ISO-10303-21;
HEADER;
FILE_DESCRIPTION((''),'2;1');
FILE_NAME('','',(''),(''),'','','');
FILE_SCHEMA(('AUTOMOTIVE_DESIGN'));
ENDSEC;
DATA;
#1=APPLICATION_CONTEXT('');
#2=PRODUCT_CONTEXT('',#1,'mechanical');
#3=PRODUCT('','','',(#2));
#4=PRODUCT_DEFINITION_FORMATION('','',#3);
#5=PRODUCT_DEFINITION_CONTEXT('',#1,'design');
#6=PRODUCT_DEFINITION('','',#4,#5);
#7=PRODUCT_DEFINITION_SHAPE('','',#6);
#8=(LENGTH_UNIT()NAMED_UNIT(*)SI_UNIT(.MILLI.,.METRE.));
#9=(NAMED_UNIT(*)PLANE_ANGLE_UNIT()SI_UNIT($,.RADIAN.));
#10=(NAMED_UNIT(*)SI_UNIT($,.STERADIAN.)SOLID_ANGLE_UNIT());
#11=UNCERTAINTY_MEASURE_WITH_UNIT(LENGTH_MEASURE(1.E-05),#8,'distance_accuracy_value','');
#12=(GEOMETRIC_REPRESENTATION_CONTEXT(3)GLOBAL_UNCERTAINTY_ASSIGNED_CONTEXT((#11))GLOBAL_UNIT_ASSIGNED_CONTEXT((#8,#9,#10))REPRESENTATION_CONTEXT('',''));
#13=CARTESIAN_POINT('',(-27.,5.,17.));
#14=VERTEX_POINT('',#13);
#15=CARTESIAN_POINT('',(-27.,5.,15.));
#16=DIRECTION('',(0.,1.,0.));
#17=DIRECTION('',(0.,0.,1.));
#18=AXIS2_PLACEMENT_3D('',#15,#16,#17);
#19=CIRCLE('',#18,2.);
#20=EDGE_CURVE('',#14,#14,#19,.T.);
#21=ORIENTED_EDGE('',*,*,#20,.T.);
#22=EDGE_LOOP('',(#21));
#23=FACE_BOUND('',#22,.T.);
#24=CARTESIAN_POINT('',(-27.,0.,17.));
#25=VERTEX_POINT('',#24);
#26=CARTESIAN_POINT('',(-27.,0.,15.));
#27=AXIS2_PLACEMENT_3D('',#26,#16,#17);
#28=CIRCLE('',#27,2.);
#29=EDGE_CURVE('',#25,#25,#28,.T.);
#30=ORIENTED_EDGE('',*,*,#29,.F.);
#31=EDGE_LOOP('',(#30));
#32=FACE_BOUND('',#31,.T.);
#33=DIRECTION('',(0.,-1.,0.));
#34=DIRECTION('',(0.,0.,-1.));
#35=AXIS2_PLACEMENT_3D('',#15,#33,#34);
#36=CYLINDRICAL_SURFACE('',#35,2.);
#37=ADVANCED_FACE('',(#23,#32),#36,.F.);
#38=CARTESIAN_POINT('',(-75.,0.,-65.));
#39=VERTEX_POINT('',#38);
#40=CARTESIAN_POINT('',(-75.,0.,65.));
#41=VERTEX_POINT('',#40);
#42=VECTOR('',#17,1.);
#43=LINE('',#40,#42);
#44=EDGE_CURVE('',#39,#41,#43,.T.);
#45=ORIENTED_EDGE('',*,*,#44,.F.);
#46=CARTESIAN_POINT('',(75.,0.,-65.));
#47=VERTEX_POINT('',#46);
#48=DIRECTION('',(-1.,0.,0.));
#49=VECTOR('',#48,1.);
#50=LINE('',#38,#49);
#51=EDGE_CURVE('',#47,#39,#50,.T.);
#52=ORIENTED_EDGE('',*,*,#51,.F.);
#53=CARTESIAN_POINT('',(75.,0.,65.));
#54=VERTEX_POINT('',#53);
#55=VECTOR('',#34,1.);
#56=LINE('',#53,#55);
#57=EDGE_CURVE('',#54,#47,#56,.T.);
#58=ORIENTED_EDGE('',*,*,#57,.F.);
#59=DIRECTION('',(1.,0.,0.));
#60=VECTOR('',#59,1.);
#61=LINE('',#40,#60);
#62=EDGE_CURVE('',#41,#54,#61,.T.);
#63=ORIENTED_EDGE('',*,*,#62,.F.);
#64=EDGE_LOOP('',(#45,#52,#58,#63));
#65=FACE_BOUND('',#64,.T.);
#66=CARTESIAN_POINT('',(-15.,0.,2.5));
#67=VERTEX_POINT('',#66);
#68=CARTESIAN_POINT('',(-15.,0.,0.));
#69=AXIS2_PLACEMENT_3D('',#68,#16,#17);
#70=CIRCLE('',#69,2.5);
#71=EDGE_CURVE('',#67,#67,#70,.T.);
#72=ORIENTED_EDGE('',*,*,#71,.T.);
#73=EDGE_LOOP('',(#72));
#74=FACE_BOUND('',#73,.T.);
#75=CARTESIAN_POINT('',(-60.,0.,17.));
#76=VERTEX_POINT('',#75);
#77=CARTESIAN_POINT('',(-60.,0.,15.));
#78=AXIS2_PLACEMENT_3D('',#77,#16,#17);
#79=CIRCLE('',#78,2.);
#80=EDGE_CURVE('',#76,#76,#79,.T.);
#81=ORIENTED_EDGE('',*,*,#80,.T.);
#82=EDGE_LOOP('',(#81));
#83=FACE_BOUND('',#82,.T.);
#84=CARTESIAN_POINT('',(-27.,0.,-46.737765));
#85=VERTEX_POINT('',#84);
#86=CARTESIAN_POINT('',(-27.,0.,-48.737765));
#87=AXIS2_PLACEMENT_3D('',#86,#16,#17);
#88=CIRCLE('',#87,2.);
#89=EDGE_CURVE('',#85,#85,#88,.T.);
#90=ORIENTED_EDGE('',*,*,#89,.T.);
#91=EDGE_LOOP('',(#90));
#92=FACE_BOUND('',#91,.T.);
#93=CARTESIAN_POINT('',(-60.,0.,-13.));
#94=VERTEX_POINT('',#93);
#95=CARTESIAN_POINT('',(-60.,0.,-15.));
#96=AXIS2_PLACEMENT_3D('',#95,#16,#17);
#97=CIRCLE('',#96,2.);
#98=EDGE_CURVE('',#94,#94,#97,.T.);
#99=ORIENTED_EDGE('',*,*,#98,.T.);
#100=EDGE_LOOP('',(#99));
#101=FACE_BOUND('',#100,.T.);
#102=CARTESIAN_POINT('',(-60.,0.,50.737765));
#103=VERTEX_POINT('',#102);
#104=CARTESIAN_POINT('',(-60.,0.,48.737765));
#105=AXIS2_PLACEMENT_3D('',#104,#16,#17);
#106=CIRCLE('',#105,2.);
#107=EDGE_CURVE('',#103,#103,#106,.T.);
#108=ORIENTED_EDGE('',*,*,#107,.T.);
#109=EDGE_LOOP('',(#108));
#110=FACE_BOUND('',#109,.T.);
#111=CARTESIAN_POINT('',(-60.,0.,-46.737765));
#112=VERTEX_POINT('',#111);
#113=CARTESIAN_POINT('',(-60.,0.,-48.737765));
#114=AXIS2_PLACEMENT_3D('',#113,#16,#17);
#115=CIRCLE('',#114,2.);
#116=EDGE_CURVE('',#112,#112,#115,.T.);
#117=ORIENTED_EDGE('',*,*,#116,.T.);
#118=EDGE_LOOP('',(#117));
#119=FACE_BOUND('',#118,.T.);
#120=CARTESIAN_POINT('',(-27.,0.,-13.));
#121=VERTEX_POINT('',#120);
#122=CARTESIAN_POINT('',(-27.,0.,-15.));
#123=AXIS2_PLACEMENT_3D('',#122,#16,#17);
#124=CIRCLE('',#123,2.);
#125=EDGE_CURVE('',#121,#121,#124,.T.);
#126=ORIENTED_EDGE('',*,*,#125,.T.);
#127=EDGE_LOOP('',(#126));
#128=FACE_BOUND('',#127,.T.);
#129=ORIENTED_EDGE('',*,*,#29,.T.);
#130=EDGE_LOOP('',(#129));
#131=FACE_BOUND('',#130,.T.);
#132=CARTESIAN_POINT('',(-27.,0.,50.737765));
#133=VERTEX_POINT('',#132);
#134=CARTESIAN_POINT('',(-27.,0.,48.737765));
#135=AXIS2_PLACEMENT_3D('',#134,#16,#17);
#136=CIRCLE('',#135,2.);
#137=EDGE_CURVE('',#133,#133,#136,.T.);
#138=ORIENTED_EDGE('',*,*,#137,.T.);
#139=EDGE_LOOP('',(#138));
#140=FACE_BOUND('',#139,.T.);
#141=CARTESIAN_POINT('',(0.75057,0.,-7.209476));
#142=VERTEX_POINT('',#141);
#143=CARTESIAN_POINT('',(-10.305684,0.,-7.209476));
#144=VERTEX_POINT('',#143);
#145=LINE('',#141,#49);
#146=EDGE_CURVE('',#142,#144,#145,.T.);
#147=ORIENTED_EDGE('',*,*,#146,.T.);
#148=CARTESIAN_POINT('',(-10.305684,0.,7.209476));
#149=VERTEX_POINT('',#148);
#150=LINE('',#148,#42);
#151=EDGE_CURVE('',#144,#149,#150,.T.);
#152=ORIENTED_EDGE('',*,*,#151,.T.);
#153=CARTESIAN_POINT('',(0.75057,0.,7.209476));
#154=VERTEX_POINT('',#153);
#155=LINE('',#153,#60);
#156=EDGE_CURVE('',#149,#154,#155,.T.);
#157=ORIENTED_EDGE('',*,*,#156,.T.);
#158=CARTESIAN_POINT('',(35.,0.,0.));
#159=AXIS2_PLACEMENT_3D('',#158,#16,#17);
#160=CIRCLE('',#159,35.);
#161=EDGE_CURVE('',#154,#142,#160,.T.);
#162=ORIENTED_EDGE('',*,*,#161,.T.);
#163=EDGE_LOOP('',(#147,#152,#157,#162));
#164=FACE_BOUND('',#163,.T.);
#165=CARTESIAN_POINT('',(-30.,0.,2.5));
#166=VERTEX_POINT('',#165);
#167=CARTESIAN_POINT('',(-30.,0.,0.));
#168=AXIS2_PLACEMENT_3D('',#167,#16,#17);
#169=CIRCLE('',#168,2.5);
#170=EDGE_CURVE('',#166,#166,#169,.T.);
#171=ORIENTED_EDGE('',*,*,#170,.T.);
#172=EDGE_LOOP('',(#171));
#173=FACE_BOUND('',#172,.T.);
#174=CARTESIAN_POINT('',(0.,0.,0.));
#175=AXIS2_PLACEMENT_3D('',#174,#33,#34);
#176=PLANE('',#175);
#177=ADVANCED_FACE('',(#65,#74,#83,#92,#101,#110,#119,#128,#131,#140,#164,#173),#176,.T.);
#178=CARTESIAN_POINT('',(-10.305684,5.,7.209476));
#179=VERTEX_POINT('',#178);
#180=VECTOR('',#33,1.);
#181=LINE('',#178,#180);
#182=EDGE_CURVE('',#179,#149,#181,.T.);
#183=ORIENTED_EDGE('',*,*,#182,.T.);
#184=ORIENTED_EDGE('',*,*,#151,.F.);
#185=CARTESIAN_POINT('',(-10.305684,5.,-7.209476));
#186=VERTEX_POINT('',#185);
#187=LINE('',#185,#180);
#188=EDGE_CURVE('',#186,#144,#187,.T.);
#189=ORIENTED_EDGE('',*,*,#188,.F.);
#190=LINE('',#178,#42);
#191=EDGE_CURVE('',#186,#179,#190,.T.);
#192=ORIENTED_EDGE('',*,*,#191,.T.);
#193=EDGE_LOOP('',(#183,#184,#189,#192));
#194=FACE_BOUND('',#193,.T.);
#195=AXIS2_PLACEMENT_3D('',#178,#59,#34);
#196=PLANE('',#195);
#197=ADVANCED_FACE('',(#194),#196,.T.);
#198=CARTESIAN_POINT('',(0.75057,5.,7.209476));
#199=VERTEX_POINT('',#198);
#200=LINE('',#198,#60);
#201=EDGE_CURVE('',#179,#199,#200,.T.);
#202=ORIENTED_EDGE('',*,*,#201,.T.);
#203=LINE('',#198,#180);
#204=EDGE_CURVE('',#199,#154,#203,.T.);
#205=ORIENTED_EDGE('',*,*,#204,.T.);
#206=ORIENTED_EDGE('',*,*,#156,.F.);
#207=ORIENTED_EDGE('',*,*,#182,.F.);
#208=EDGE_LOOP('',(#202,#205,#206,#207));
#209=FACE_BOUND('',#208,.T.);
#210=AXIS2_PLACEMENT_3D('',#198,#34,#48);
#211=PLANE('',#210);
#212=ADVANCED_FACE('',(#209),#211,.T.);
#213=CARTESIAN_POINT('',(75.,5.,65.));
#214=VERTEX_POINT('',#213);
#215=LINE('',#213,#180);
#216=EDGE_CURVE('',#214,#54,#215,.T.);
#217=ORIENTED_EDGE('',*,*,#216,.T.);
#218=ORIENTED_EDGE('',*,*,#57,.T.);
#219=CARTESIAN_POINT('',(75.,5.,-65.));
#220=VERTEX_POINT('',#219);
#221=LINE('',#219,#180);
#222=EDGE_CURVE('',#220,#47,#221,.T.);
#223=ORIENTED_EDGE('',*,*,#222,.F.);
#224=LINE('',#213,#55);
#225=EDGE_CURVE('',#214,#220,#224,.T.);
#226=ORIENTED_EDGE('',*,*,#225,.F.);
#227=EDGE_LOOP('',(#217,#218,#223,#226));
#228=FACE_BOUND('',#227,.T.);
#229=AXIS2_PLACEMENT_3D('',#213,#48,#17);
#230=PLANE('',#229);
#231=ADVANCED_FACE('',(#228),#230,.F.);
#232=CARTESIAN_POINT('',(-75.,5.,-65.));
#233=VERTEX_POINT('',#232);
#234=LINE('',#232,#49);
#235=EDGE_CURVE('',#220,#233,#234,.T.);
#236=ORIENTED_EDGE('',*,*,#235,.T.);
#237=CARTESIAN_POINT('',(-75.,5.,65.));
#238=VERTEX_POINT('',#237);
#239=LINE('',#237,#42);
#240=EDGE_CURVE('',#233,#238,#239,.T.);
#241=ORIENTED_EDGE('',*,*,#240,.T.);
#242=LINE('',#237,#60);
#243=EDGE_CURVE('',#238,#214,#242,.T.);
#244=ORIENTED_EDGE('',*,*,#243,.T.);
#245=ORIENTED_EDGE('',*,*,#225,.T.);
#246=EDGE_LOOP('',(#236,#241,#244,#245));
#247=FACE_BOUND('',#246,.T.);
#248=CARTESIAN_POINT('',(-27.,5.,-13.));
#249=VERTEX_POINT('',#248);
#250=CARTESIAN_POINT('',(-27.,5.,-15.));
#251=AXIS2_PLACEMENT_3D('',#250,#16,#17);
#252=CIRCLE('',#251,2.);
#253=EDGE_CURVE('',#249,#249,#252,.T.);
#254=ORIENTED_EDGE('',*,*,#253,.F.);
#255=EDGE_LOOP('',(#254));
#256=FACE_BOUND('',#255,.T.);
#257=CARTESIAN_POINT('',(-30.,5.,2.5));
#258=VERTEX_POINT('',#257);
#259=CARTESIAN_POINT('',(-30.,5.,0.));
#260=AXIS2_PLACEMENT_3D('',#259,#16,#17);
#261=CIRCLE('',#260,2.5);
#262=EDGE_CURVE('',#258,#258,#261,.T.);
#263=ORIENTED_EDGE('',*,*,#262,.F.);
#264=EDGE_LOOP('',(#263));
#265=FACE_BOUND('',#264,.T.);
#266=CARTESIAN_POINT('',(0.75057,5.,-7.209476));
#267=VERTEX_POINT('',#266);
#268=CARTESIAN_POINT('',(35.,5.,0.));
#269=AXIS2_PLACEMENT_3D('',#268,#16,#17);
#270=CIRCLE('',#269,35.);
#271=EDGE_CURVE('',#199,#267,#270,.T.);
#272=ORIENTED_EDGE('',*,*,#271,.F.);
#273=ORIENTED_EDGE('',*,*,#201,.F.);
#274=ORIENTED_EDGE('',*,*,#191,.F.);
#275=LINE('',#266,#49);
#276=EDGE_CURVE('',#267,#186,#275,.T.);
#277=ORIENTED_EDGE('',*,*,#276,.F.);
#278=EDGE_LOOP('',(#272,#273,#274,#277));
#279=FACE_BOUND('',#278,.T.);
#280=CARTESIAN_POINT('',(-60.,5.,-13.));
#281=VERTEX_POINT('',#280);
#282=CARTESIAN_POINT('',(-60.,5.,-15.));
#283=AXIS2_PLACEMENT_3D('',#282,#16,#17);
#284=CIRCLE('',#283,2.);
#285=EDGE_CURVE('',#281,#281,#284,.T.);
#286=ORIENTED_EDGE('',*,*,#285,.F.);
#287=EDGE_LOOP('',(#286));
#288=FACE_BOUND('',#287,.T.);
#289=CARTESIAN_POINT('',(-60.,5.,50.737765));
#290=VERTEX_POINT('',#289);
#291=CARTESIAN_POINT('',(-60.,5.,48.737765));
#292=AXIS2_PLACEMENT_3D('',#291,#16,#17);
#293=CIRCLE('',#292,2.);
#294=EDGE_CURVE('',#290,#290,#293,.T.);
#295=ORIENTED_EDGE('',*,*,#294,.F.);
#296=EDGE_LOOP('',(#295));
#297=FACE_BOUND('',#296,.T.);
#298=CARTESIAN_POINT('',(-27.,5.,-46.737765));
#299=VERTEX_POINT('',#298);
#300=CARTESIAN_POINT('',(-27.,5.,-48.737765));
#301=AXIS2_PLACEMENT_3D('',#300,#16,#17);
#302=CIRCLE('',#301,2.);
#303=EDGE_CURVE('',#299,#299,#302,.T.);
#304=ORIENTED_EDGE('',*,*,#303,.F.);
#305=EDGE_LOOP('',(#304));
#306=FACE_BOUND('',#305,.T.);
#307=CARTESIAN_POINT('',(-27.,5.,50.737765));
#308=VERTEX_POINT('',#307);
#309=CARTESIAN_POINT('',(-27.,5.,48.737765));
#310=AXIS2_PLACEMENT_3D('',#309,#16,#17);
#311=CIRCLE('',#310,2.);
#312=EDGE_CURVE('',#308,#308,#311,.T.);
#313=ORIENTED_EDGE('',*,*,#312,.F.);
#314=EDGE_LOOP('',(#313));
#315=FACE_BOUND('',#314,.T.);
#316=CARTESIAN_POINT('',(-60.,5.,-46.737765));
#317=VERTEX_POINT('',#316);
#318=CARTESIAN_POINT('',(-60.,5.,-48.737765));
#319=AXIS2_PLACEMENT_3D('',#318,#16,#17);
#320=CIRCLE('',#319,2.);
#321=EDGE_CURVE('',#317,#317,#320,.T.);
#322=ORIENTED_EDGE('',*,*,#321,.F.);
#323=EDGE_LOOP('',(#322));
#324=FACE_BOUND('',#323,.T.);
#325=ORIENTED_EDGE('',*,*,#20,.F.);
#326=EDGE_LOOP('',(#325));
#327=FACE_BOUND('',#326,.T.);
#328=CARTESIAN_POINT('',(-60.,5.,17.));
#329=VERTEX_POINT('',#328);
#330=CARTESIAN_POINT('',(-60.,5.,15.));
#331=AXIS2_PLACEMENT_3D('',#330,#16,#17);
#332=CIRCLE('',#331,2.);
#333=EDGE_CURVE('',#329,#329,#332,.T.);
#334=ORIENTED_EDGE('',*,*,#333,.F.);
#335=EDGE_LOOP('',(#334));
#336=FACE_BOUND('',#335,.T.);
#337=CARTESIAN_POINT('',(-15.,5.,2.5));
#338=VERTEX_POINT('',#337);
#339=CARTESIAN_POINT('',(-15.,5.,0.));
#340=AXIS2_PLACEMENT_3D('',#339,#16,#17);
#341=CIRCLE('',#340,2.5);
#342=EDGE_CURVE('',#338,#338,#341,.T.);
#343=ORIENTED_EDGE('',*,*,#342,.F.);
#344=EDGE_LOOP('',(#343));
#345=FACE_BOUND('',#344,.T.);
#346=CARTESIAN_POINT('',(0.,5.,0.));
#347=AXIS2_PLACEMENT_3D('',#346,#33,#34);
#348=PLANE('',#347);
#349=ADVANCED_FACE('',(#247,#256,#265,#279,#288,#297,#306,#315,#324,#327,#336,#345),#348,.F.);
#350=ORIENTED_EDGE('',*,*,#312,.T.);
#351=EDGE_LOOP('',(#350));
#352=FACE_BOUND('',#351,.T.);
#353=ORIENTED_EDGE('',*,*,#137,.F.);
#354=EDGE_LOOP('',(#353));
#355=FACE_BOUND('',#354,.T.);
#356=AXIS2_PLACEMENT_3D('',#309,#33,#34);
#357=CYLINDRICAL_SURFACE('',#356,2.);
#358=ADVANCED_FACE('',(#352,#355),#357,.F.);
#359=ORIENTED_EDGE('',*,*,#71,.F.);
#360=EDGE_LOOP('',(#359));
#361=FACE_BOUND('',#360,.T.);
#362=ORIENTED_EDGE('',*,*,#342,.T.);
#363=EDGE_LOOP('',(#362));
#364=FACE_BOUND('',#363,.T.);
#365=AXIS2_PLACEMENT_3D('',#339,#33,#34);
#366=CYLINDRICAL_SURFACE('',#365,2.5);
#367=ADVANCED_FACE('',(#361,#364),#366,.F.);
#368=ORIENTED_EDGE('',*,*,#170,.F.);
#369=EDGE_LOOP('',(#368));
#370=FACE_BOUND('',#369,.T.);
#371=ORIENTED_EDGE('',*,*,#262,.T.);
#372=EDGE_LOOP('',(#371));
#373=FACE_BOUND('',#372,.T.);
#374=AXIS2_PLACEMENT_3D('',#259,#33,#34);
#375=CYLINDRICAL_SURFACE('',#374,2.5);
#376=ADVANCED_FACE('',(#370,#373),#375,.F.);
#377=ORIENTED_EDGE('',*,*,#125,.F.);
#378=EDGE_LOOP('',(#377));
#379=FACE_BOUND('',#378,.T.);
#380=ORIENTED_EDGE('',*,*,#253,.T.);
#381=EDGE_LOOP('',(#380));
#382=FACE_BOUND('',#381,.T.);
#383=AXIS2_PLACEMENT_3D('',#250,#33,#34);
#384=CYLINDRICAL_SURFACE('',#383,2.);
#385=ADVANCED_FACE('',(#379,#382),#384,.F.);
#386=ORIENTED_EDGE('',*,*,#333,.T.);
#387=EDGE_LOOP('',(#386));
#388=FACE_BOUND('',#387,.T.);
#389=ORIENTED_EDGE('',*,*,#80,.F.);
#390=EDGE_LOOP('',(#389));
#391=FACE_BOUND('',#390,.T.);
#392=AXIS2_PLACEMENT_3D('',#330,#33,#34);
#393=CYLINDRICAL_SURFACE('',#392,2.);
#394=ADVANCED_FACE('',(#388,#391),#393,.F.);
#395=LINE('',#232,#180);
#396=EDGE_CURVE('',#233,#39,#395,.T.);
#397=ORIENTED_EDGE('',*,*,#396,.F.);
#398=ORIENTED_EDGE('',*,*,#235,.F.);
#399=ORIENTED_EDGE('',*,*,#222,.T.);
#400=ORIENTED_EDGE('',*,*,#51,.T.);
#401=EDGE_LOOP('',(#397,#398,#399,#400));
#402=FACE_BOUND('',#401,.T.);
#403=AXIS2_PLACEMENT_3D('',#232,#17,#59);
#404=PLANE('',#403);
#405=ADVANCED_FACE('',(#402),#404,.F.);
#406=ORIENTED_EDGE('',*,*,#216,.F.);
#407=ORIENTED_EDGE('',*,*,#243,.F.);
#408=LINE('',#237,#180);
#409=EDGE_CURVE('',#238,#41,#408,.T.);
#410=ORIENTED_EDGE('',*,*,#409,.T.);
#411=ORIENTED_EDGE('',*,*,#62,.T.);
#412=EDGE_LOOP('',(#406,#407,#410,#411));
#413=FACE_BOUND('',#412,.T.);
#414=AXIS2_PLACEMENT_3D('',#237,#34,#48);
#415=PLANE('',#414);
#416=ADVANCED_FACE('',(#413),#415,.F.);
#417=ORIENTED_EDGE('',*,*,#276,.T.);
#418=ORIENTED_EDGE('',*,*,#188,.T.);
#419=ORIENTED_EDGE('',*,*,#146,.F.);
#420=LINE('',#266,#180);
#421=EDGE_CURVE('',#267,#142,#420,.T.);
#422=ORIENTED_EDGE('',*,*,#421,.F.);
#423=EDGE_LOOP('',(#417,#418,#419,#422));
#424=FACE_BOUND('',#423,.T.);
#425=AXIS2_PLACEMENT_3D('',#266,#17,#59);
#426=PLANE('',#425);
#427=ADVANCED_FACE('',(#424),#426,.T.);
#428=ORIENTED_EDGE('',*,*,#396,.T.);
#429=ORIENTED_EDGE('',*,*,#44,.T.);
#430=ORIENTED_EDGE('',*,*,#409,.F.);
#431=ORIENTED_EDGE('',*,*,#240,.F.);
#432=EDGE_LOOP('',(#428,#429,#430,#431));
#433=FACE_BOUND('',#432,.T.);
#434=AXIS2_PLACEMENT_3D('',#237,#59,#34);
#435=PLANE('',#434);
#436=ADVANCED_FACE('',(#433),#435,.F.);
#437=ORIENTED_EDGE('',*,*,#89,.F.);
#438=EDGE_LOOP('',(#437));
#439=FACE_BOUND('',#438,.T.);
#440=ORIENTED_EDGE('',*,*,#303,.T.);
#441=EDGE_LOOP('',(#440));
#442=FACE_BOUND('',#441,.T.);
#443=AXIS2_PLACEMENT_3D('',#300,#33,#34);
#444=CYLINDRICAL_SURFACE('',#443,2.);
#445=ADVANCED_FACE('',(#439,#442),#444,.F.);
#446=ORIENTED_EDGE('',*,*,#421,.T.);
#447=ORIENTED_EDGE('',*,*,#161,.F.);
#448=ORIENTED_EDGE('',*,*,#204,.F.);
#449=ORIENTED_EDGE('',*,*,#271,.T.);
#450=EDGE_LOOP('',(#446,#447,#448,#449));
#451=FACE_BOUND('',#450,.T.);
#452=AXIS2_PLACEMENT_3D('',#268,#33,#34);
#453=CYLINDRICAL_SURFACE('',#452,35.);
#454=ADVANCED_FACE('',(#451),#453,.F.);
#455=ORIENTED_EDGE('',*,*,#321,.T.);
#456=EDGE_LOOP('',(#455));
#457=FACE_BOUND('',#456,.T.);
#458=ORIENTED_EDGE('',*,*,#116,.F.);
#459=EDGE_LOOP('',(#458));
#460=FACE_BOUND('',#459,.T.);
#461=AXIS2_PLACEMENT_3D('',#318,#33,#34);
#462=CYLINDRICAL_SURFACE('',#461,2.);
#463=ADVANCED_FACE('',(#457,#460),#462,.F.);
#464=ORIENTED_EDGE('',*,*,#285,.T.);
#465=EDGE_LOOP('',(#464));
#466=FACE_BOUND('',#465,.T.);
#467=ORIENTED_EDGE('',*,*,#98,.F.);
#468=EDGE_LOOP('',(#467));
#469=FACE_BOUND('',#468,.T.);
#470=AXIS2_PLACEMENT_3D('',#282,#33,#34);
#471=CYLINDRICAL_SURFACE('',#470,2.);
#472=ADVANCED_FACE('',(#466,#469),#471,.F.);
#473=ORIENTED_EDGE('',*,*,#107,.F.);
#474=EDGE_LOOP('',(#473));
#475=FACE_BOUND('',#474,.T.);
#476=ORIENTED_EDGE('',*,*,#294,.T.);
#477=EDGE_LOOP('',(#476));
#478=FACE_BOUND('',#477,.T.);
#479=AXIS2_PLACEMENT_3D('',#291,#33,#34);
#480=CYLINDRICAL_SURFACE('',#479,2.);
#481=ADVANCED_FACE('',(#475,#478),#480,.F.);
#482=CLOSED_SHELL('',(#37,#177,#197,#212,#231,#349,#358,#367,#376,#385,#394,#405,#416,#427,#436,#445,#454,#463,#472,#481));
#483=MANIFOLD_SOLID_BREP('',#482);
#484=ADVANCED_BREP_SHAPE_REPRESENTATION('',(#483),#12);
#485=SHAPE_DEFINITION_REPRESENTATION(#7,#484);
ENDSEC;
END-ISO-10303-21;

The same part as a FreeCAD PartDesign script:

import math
import FreeCAD as App
import Part
import Sketcher

V = App.Vector
Q = App.Units.Quantity


def add_polygon(sketch, points):
    """Adds a closed chain of lines whose ends are joined by coincident constraints."""
    first, n = sketch.GeometryCount, len(points)
    for a, b in zip(points, points[1:] + points[:1]):
        sketch.addGeometry(Part.LineSegment(App.Vector(*a, 0), App.Vector(*b, 0)), False)
    for i in range(n):
        sketch.addConstraint(Sketcher.Constraint("Coincident", first + i, 2, first + (i + 1) % n, 1))

doc = App.newDocument("Part")
body = doc.addObject("PartDesign::Body", "Body")

sketch1 = body.newObject("Sketcher::SketchObject", "Sketch")
sketch1.AttachmentSupport = (doc.getObject("XZ_Plane"), [""])
sketch1.MapMode = "FlatFace"
add_polygon(sketch1, [(-75, -65), (-75, 65), (75, 65), (75, -65)])
sketch1.addGeometry(Part.Circle(V(-60, 48.7, 0), V(0, 0, 1), 2), False)
sketch1.addGeometry(Part.Circle(V(-27, 48.7, 0), V(0, 0, 1), 2), False)
sketch1.addGeometry(Part.Circle(V(-60, 15, 0), V(0, 0, 1), 2), False)
sketch1.addGeometry(Part.Circle(V(-27, 15, 0), V(0, 0, 1), 2), False)
sketch1.addGeometry(Part.Circle(V(-30, 0, 0), V(0, 0, 1), 2.5), False)
sketch1.addGeometry(Part.Circle(V(-60, -15, 0), V(0, 0, 1), 2), False)
sketch1.addGeometry(Part.Circle(V(-15, 0, 0), V(0, 0, 1), 2.5), False)
sketch1.addGeometry(Part.Circle(V(-27, -15, 0), V(0, 0, 1), 2), False)
sketch1.addGeometry(Part.Circle(V(-60, -48.7, 0), V(0, 0, 1), 2), False)
sketch1.addGeometry(Part.Circle(V(-27, -48.7, 0), V(0, 0, 1), 2), False)
sketch1.addGeometry(Part.ArcOfCircle(Part.Circle(V(35, 0, 0), V(0, 0, 1), 35), math.radians(-168), math.radians(168)), False)
sketch1.addGeometry(Part.LineSegment(V(0.8, 7.2, 0), V(-10.3, 7.2, 0)), False)
sketch1.addGeometry(Part.LineSegment(V(-10.3, 7.2, 0), V(-10.3, -7.2, 0)), False)
sketch1.addGeometry(Part.LineSegment(V(-10.3, -7.2, 0), V(0.8, -7.2, 0)), False)
sketch1.addConstraint([
    Sketcher.Constraint("Coincident", 14, 2, 15, 1),
    Sketcher.Constraint("Coincident", 15, 2, 16, 1),
    Sketcher.Constraint("Coincident", 16, 2, 17, 1),
    Sketcher.Constraint("Coincident", 17, 2, 14, 1),
    Sketcher.Constraint("Vertical", 0),
    Sketcher.Constraint("Horizontal", 1),
    Sketcher.Constraint("Vertical", 2),
    Sketcher.Constraint("Horizontal", 3),
    Sketcher.Constraint("Horizontal", 15),
    Sketcher.Constraint("Vertical", 16),
    Sketcher.Constraint("Horizontal", 17),
    Sketcher.Constraint("Equal", 4, 5),
    Sketcher.Constraint("Equal", 5, 6),
    Sketcher.Constraint("Equal", 6, 7),
    Sketcher.Constraint("Equal", 7, 9),
    Sketcher.Constraint("Equal", 8, 10),
    Sketcher.Constraint("Equal", 9, 11),
    Sketcher.Constraint("Equal", 11, 12),
    Sketcher.Constraint("Equal", 12, 13),
    Sketcher.Constraint("Symmetric", 0, 2, 2, 2, -1, 1),
    Sketcher.Constraint("Symmetric", 6, 3, 9, 3, -1),
    Sketcher.Constraint("Symmetric", 7, 3, 11, 3, -1),
    Sketcher.Constraint("Symmetric", 4, 3, 12, 3, -1),
    Sketcher.Constraint("Symmetric", 5, 3, 13, 3, -1),
    Sketcher.Constraint("Symmetric", 14, 2, 17, 2, -1),
    Sketcher.Constraint("PointOnObject", 8, 3, -1),
    Sketcher.Constraint("PointOnObject", 10, 3, -1),
    Sketcher.Constraint("Horizontal", 4, 3, 5, 3),
    Sketcher.Constraint("Horizontal", 6, 3, 7, 3),
    Sketcher.Constraint("Vertical", 4, 3, 6, 3),
    Sketcher.Constraint("Vertical", 5, 3, 7, 3),
    Sketcher.Constraint("Diameter", 4, Q("4 mm")),
    Sketcher.Constraint("Diameter", 8, Q("5 mm")),
    Sketcher.Constraint("Radius", 14, Q("35 mm")),
    Sketcher.Constraint("DistanceX", 1, 1, 1, 2, Q("150 mm")),
    Sketcher.Constraint("DistanceY", 0, 1, 0, 2, Q("130 mm")),
    Sketcher.Constraint("DistanceX", 4, 3, -1, 1, Q("60 mm")),
    Sketcher.Constraint("DistanceX", 5, 3, -1, 1, Q("27 mm")),
    Sketcher.Constraint("DistanceY", -1, 1, 6, 3, Q("15 mm")),
    Sketcher.Constraint("DistanceX", 8, 3, -1, 1, Q("30 mm")),
    Sketcher.Constraint("DistanceX", 10, 3, -1, 1, Q("15 mm")),
    Sketcher.Constraint("DistanceX", -1, 1, 14, 3, Q("35 mm")),
    Sketcher.Constraint("DistanceX", 15, 2, 15, 1, Q("11.056254 mm")),
    Sketcher.Constraint("DistanceY", 16, 2, 16, 1, Q("14.418952 mm")),
    Sketcher.Constraint("DistanceY", -1, 1, 4, 3, Q("48.737765 mm")),
])
pad1 = body.newObject("PartDesign::Pad", "Pad")
pad1.Profile = sketch1
pad1.Length = 5
pad1.Reversed = True

doc.recompute()
